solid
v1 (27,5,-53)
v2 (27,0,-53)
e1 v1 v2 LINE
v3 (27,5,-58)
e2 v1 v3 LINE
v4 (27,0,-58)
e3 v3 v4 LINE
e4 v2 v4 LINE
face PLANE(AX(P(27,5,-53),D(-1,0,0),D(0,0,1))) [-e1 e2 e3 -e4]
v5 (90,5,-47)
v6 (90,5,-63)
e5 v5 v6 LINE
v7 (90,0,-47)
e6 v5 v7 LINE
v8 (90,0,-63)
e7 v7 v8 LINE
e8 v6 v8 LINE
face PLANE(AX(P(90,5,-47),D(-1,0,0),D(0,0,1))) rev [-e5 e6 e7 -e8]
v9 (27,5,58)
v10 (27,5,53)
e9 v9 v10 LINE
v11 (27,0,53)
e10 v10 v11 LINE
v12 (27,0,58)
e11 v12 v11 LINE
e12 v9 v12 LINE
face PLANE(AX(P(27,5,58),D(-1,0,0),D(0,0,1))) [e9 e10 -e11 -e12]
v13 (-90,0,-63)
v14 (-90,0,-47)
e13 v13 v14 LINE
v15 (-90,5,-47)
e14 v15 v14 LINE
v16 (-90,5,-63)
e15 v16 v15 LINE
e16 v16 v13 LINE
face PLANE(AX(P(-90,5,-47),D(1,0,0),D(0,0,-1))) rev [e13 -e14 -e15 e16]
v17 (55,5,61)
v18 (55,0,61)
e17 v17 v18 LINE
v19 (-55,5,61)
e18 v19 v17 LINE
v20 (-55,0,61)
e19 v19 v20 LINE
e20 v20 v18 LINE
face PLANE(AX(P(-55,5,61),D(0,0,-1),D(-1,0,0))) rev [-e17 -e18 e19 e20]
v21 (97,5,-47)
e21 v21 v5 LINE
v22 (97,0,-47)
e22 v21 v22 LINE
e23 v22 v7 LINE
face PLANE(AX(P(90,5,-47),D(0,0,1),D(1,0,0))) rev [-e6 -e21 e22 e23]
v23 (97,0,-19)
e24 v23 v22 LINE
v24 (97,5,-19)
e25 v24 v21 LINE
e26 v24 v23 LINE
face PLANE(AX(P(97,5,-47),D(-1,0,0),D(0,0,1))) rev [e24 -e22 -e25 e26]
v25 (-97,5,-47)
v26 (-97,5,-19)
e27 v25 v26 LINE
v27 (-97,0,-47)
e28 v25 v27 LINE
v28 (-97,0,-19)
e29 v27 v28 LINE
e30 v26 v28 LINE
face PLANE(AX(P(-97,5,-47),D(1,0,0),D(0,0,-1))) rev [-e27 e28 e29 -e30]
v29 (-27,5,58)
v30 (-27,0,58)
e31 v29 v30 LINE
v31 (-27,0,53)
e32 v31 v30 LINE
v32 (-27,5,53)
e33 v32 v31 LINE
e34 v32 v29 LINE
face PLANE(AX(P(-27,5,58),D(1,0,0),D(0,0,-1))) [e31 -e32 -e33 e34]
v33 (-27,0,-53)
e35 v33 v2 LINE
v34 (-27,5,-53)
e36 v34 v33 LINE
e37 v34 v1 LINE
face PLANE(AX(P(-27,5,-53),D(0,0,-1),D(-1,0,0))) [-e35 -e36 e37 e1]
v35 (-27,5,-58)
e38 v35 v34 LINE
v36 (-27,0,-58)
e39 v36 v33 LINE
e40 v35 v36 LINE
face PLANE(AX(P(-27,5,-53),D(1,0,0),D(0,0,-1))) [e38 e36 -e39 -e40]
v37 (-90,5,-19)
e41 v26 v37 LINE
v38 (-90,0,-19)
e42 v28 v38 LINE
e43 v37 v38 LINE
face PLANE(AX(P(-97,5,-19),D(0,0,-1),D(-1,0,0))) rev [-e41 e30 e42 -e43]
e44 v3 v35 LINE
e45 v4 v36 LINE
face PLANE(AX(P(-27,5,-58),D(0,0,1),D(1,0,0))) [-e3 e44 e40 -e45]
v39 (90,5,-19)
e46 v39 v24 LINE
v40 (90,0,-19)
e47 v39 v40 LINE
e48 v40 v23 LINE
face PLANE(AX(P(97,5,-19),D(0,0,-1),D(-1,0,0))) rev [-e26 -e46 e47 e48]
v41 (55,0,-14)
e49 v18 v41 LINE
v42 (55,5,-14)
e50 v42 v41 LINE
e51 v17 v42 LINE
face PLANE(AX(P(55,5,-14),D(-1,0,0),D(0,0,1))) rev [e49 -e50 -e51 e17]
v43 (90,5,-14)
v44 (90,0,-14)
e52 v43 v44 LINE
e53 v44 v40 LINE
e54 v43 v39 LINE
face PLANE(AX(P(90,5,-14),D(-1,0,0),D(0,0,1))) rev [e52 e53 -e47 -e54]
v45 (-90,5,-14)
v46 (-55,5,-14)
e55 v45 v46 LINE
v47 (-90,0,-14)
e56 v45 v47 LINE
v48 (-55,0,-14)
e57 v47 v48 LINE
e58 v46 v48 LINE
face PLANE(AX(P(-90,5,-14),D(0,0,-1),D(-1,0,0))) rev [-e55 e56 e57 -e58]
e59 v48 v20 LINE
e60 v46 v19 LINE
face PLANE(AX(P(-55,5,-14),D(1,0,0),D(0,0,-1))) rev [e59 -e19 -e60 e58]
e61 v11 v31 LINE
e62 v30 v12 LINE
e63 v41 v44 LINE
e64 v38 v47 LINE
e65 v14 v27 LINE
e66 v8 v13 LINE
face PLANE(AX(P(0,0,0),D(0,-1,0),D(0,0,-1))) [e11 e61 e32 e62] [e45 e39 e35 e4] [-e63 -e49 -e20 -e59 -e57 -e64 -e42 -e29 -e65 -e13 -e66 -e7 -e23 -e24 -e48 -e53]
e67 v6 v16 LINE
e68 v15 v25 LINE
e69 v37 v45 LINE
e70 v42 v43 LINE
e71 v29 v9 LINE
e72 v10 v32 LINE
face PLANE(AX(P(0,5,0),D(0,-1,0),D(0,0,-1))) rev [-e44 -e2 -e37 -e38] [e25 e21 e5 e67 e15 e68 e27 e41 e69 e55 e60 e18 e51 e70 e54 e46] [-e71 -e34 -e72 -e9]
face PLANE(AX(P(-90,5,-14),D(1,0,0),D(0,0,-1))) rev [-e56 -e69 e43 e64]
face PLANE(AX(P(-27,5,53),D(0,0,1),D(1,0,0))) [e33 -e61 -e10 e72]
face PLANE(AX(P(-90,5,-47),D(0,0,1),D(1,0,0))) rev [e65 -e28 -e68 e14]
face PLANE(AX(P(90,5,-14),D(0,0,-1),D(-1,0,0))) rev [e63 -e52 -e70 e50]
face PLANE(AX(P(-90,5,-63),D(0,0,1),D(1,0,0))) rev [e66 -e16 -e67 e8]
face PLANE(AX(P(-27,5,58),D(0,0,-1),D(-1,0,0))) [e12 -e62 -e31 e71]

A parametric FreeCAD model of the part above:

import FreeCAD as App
import Part
import Sketcher
Q = App.Units.Quantity


def add_polygon(sketch, points):
    """Adds a closed chain of lines whose ends are joined by coincident constraints."""
    first, n = sketch.GeometryCount, len(points)
    for a, b in zip(points, points[1:] + points[:1]):
        sketch.addGeometry(Part.LineSegment(App.Vector(*a, 0), App.Vector(*b, 0)), False)
    for i in range(n):
        sketch.addConstraint(Sketcher.Constraint("Coincident", first + i, 2, first + (i + 1) % n, 1))

doc = App.newDocument("Part")
body = doc.addObject("PartDesign::Body", "Body")

# Sketch on XZ plane
sketch1 = body.newObject("Sketcher::SketchObject", "Sketch")
sketch1.AttachmentSupport = (doc.getObject("XZ_Plane"), [""])
sketch1.MapMode = "FlatFace"
add_polygon(sketch1, [(-90, -47), (-97, -47), (-97, -19), (-90, -19), (-90, -14), (-55, -14), (-55, 61), (55, 61), (55, -14), (90, -14), (90, -19), (97, -19), (97, -47), (90, -47), (90, -63), (-90, -63)])  # lines 0-15
add_polygon(sketch1, [(27, 58), (-27, 58), (-27, 53), (27, 53)])  # lines 16-19
add_polygon(sketch1, [(27, -53), (-27, -53), (-27, -58), (27, -58)])  # lines 20-23
sketch1.addConstraint([
    Sketcher.Constraint("Horizontal", 0),
    Sketcher.Constraint("Vertical", 1),
    Sketcher.Constraint("Horizontal", 2),
    Sketcher.Constraint("Vertical", 3),
    Sketcher.Constraint("Horizontal", 4),
    Sketcher.Constraint("Vertical", 5),
    Sketcher.Constraint("Horizontal", 6),
    Sketcher.Constraint("Vertical", 7),
    Sketcher.Constraint("Horizontal", 8),
    Sketcher.Constraint("Vertical", 9),
    Sketcher.Constraint("Horizontal", 10),
    Sketcher.Constraint("Vertical", 11),
    Sketcher.Constraint("Horizontal", 12),
    Sketcher.Constraint("Vertical", 13),
    Sketcher.Constraint("Horizontal", 14),
    Sketcher.Constraint("Vertical", 15),
    Sketcher.Constraint("Horizontal", 16),
    Sketcher.Constraint("Vertical", 17),
    Sketcher.Constraint("Horizontal", 18),
    Sketcher.Constraint("Vertical", 19),
    Sketcher.Constraint("Horizontal", 20),
    Sketcher.Constraint("Vertical", 21),
    Sketcher.Constraint("Horizontal", 22),
    Sketcher.Constraint("Vertical", 23),
    Sketcher.Constraint("Symmetric", 18, 2, 20, 2, -1, 1),
    Sketcher.Constraint("Symmetric", 16, 2, 22, 2, -1, 1),
    Sketcher.Constraint("Symmetric", 4, 2, 7, 2, -2),
    Sketcher.Constraint("Symmetric", 2, 2, 9, 2, -2),
    Sketcher.Constraint("Symmetric", 0, 2, 11, 2, -2),
    Sketcher.Constraint("Vertical", 9, 2, 12, 2),
    Sketcher.Constraint("Vertical", 3, 2, 14, 2),
    Sketcher.Constraint("Vertical", 17, 2, 20, 2),
    Sketcher.Constraint("Equal", 9, 17),
    Sketcher.Constraint("DistanceX", 0, 2, 0, 1, Q("7 mm")),
    Sketcher.Constraint("DistanceX", 4, 1, 4, 2, Q("35 mm")),
    Sketcher.Constraint("DistanceX", 6, 1, 6, 2, Q("110 mm")),
    Sketcher.Constraint("DistanceX", 16, 2, 16, 1, Q("54 mm")),
    Sketcher.Constraint("DistanceY", 1, 1, 1, 2, Q("28 mm")),
    Sketcher.Constraint("DistanceY", 3, 1, 3, 2, Q("5 mm")),
    Sketcher.Constraint("DistanceY", 5, 1, 5, 2, Q("75 mm")),
    Sketcher.Constraint("DistanceY", 13, 2, 13, 1, Q("16 mm")),
    Sketcher.Constraint("DistanceY", 0, 2, -1, 1, Q("47 mm")),
    Sketcher.Constraint("DistanceY", -1, 1, 16, 2, Q("58 mm")),
])
pad1 = body.newObject("PartDesign::Pad", "Pad")
pad1.Profile = sketch1
pad1.Length = 5
pad1.Reversed = True

doc.recompute()
